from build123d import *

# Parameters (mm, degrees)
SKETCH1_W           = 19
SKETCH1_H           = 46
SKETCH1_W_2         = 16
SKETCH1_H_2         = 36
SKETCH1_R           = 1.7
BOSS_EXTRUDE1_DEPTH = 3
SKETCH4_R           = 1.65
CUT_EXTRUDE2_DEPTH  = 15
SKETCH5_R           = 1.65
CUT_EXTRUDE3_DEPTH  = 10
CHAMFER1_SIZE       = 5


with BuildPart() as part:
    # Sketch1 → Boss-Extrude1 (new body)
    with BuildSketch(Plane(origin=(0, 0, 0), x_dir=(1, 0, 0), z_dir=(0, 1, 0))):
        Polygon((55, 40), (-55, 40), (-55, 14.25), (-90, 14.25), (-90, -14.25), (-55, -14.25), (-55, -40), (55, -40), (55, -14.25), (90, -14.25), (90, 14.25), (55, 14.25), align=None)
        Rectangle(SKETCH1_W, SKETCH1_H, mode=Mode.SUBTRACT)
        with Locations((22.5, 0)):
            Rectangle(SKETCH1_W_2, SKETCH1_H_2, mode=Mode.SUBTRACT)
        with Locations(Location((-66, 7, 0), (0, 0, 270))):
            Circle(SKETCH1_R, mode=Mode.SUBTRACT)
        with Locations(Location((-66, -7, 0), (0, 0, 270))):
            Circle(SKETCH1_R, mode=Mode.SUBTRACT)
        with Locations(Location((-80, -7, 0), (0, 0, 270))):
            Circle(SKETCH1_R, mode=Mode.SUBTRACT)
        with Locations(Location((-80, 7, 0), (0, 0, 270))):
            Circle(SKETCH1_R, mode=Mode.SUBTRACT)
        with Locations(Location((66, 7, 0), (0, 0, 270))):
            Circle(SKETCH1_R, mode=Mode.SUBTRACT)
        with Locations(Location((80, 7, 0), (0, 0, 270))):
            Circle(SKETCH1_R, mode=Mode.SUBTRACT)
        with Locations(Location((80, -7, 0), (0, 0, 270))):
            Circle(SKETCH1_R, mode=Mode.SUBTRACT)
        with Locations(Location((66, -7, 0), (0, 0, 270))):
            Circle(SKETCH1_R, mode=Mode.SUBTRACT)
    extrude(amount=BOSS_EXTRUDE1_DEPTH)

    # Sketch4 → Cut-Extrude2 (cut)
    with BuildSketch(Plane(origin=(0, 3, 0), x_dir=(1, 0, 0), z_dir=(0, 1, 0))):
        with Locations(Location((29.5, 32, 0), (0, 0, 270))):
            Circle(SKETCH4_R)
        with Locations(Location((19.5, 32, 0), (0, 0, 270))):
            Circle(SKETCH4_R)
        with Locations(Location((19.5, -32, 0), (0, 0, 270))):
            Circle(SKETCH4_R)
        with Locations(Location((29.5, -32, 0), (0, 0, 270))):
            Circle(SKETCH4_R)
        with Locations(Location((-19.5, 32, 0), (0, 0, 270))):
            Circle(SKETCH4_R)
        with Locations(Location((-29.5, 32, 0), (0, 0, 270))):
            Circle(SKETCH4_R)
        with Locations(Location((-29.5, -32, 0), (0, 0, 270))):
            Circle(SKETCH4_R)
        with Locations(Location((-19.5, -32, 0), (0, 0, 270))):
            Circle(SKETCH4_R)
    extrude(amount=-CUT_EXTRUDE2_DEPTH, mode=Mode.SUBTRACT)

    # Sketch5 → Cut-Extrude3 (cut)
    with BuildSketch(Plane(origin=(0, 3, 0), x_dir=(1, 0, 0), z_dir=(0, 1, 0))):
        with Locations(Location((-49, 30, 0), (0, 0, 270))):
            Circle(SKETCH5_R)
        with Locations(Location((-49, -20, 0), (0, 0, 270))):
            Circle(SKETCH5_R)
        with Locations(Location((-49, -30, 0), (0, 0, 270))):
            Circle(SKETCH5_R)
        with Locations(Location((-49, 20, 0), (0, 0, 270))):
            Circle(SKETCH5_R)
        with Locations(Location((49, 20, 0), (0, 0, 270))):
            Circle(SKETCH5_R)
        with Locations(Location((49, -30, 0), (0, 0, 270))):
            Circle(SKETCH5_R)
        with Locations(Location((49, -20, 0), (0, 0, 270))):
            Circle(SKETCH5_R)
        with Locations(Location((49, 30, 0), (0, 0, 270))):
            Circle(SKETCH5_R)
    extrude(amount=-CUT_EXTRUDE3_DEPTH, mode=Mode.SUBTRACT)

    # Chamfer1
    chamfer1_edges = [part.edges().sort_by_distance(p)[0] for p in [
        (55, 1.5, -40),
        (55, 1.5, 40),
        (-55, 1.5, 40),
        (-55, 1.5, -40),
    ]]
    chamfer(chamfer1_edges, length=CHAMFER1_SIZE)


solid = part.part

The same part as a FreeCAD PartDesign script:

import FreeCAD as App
import Part
import Sketcher
from FreeCAD import Vector


def edges_at(feature, points):
    """Names of the edges that pass closest to the given points."""
    edges = feature.Shape.Edges
    near = lambda p: min(range(len(edges)), key=lambda i: edges[i].distToShape(Part.Vertex(*p))[0])
    return sorted({f"Edge{near(p) + 1}" for p in points})


def add_polygon(sketch, points):
    """Adds a closed chain of lines whose ends are joined by coincident constraints."""
    first, n = sketch.GeometryCount, len(points)
    for a, b in zip(points, points[1:] + points[:1]):
        sketch.addGeometry(Part.LineSegment(App.Vector(*a, 0), App.Vector(*b, 0)), False)
    for i in range(n):
        sketch.addConstraint(Sketcher.Constraint("Coincident", first + i, 2, first + (i + 1) % n, 1))

doc = App.newDocument("Part")
body = doc.addObject("PartDesign::Body", "Body")

# Sketch on XZ plane
sketch1 = doc.addObject("Sketcher::SketchObject", "Sketch")
body.addObject(sketch1)
sketch1.AttachmentSupport = (doc.XZ_Plane, [""])
sketch1.MapMode = "FlatFace"
add_polygon(sketch1, [(55, -40), (-55, -40), (-55, -14.2), (-90, -14.2), (-90, 14.2), (-55, 14.2), (-55, 40), (55, 40), (55, 14.2), (90, 14.2), (90, -14.2), (55, -14.2)])  # lines 0-11
sketch1.addGeometry(Part.Circle(Vector(-80, 7, 0), Vector(0, 0, 1), 1.7), False)  # 12
sketch1.addGeometry(Part.Circle(Vector(-66, 7, 0), Vector(0, 0, 1), 1.7), False)  # 13
sketch1.addGeometry(Part.Circle(Vector(66, 7, 0), Vector(0, 0, 1), 1.7), False)  # 14
sketch1.addGeometry(Part.Circle(Vector(80, 7, 0), Vector(0, 0, 1), 1.7), False)  # 15
sketch1.addGeometry(Part.Circle(Vector(-80, -7, 0), Vector(0, 0, 1), 1.7), False)  # 16
sketch1.addGeometry(Part.Circle(Vector(-66, -7, 0), Vector(0, 0, 1), 1.7), False)  # 17
add_polygon(sketch1, [(9.5, 23), (-9.5, 23), (-9.5, -23), (9.5, -23)])  # lines 18-21
add_polygon(sketch1, [(30.5, 18), (14.5, 18), (14.5, -18), (30.5, -18)])  # lines 22-25
sketch1.addGeometry(Part.Circle(Vector(66, -7, 0), Vector(0, 0, 1), 1.7), False)  # 26
sketch1.addGeometry(Part.Circle(Vector(80, -7, 0), Vector(0, 0, 1), 1.7), False)  # 27
sketch1.addConstraint(Sketcher.Constraint("Horizontal", 0))
sketch1.addConstraint(Sketcher.Constraint("Vertical", 1))
sketch1.addConstraint(Sketcher.Constraint("Horizontal", 2))
sketch1.addConstraint(Sketcher.Constraint("Vertical", 3))
sketch1.addConstraint(Sketcher.Constraint("Horizontal", 4))
sketch1.addConstraint(Sketcher.Constraint("Vertical", 5))
sketch1.addConstraint(Sketcher.Constraint("Horizontal", 6))
sketch1.addConstraint(Sketcher.Constraint("Vertical", 7))
sketch1.addConstraint(Sketcher.Constraint("Horizontal", 8))
sketch1.addConstraint(Sketcher.Constraint("Vertical", 9))
sketch1.addConstraint(Sketcher.Constraint("Horizontal", 10))
sketch1.addConstraint(Sketcher.Constraint("Vertical", 11))
sketch1.addConstraint(Sketcher.Constraint("Horizontal", 18))
sketch1.addConstraint(Sketcher.Constraint("Vertical", 19))
sketch1.addConstraint(Sketcher.Constraint("Horizontal", 20))
sketch1.addConstraint(Sketcher.Constraint("Vertical", 21))
sketch1.addConstraint(Sketcher.Constraint("Horizontal", 22))
sketch1.addConstraint(Sketcher.Constraint("Vertical", 23))
sketch1.addConstraint(Sketcher.Constraint("Horizontal", 24))
sketch1.addConstraint(Sketcher.Constraint("Vertical", 25))
sketch1.addConstraint(Sketcher.Constraint("Equal", 12, 13))
sketch1.addConstraint(Sketcher.Constraint("Equal", 13, 14))
sketch1.addConstraint(Sketcher.Constraint("Equal", 14, 15))
sketch1.addConstraint(Sketcher.Constraint("Equal", 15, 16))
sketch1.addConstraint(Sketcher.Constraint("Equal", 16, 17))
sketch1.addConstraint(Sketcher.Constraint("Equal", 17, 26))
sketch1.addConstraint(Sketcher.Constraint("Equal", 26, 27))
sketch1.addConstraint(Sketcher.Constraint("Symmetric", 15, 3, 16, 3, -1, 1))
sketch1.addConstraint(Sketcher.Constraint("Symmetric", 14, 3, 17, 3, -1, 1))
sketch1.addConstraint(Sketcher.Constraint("Symmetric", 13, 3, 26, 3, -1, 1))
sketch1.addConstraint(Sketcher.Constraint("Symmetric", 12, 3, 27, 3, -1, 1))
sketch1.addConstraint(Sketcher.Constraint("Symmetric", 0, 2, 6, 2, -1, 1))
sketch1.addConstraint(Sketcher.Constraint("Symmetric", 2, 2, 8, 2, -1, 1))
sketch1.addConstraint(Sketcher.Constraint("Symmetric", 4, 2, 10, 2, -1, 1))
sketch1.addConstraint(Sketcher.Constraint("Symmetric", 18, 2, 20, 2, -1, 1))
sketch1.addConstraint(Sketcher.Constraint("Symmetric", 13, 3, 14, 3, -2))
sketch1.addConstraint(Sketcher.Constraint("Symmetric", 12, 3, 15, 3, -2))
sketch1.addConstraint(Sketcher.Constraint("Symmetric", 4, 2, 7, 2, -2))
sketch1.addConstraint(Sketcher.Constraint("Horizontal", 12, 3, 13, 3))
sketch1.addConstraint(Sketcher.Constraint("Diameter", 12, 3.4))
sketch1.addConstraint(Sketcher.Constraint("DistanceX", 0, 2, 0, 1, 110.0))
sketch1.addConstraint(Sketcher.Constraint("DistanceX", 2, 2, 2, 1, 35.0))
sketch1.addConstraint(Sketcher.Constraint("DistanceX", 18, 2, 18, 1, 19.0))
sketch1.addConstraint(Sketcher.Constraint("DistanceX", 22, 2, 22, 1, 16.0))
sketch1.addConstraint(Sketcher.Constraint("DistanceY", 19, 2, 19, 1, 46.0))
sketch1.addConstraint(Sketcher.Constraint("DistanceY", 23, 2, 23, 1, 36.0))
sketch1.addConstraint(Sketcher.Constraint("DistanceY", 3, 1, 3, 2, 28.5))
sketch1.addConstraint(Sketcher.Constraint("DistanceX", 12, 3, -1, 1, 80.0))
sketch1.addConstraint(Sketcher.Constraint("DistanceY", -1, 1, 12, 3, 7.0))
sketch1.addConstraint(Sketcher.Constraint("DistanceX", 13, 3, -1, 1, 66.0))
sketch1.addConstraint(Sketcher.Constraint("DistanceY", 0, 2, -1, 1, 40.0))
sketch1.addConstraint(Sketcher.Constraint("DistanceY", -1, 1, 22, 2, 18.0))
sketch1.addConstraint(Sketcher.Constraint("DistanceX", 21, 2, 22, 2, 5.0))
pad1 = doc.addObject("PartDesign::Pad", "Pad")
body.addObject(pad1)
pad1.Profile = sketch1
pad1.Length = 3
pad1.Reversed = True

# Sketch on XZ plane
sketch2 = doc.addObject("Sketcher::SketchObject", "Sketch001")
body.addObject(sketch2)
sketch2.AttachmentSupport = (doc.XZ_Plane, [""])
sketch2.MapMode = "FlatFace"
sketch2.AttachmentOffset = App.Placement(Vector(0, 0, -3), App.Rotation())
sketch2.addGeometry(Part.Circle(Vector(29.5, -32, 0), Vector(0, 0, 1), 1.6), False)
sketch2.addGeometry(Part.Circle(Vector(19.5, -32, 0), Vector(0, 0, 1), 1.6), False)
sketch2.addGeometry(Part.Circle(Vector(19.5, 32, 0), Vector(0, 0, 1), 1.6), False)
sketch2.addGeometry(Part.Circle(Vector(29.5, 32, 0), Vector(0, 0, 1), 1.6), False)
sketch2.addGeometry(Part.Circle(Vector(-19.5, -32, 0), Vector(0, 0, 1), 1.6), False)
sketch2.addGeometry(Part.Circle(Vector(-29.5, -32, 0), Vector(0, 0, 1), 1.6), False)
sketch2.addGeometry(Part.Circle(Vector(-29.5, 32, 0), Vector(0, 0, 1), 1.6), False)
sketch2.addGeometry(Part.Circle(Vector(-19.5, 32, 0), Vector(0, 0, 1), 1.6), False)
sketch2.addConstraint(Sketcher.Constraint("Equal", 0, 1))
sketch2.addConstraint(Sketcher.Constraint("Equal", 1, 2))
sketch2.addConstraint(Sketcher.Constraint("Equal", 2, 3))
sketch2.addConstraint(Sketcher.Constraint("Equal", 3, 4))
sketch2.addConstraint(Sketcher.Constraint("Equal", 4, 5))
sketch2.addConstraint(Sketcher.Constraint("Equal", 5, 6))
sketch2.addConstraint(Sketcher.Constraint("Equal", 6, 7))
sketch2.addConstraint(Sketcher.Constraint("Symmetric", 2, 3, 4, 3, -1, 1))
sketch2.addConstraint(Sketcher.Constraint("Symmetric", 3, 3, 5, 3, -1, 1))
sketch2.addConstraint(Sketcher.Constraint("Symmetric", 0, 3, 6, 3, -1, 1))
sketch2.addConstraint(Sketcher.Constraint("Symmetric", 1, 3, 7, 3, -1, 1))
sketch2.addConstraint(Sketcher.Constraint("Symmetric", 1, 3, 4, 3, -2))
sketch2.addConstraint(Sketcher.Constraint("Symmetric", 0, 3, 5, 3, -2))
sketch2.addConstraint(Sketcher.Constraint("Horizontal", 0, 3, 1, 3))
sketch2.addConstraint(Sketcher.Constraint("Diameter", 0, 3.3))
sketch2.addConstraint(Sketcher.Constraint("DistanceY", 0, 3, -1, 1, 32.0))
sketch2.addConstraint(Sketcher.Constraint("DistanceX", 1, 3, 0, 3, 10.0))
sketch2.addConstraint(Sketcher.Constraint("DistanceX", 4, 3, 1, 3, 39.0))
pocket1 = doc.addObject("PartDesign::Pocket", "Pocket")
body.addObject(pocket1)
pocket1.Profile = sketch2
pocket1.Length = 15
pocket1.Reversed = True

# Sketch on XZ plane
sketch3 = doc.addObject("Sketcher::SketchObject", "Sketch002")
body.addObject(sketch3)
sketch3.AttachmentSupport = (doc.XZ_Plane, [""])
sketch3.MapMode = "FlatFace"
sketch3.AttachmentOffset = App.Placement(Vector(0, 0, -3), App.Rotation())
sketch3.addGeometry(Part.Circle(Vector(-49, -30, 0), Vector(0, 0, 1), 1.6), False)
sketch3.addGeometry(Part.Circle(Vector(-49, 20, 0), Vector(0, 0, 1), 1.6), False)
sketch3.addGeometry(Part.Circle(Vector(-49, 30, 0), Vector(0, 0, 1), 1.6), False)
sketch3.addGeometry(Part.Circle(Vector(-49, -20, 0), Vector(0, 0, 1), 1.6), False)
sketch3.addGeometry(Part.Circle(Vector(49, -20, 0), Vector(0, 0, 1), 1.6), False)
sketch3.addGeometry(Part.Circle(Vector(49, 30, 0), Vector(0, 0, 1), 1.6), False)
sketch3.addGeometry(Part.Circle(Vector(49, 20, 0), Vector(0, 0, 1), 1.6), False)
sketch3.addGeometry(Part.Circle(Vector(49, -30, 0), Vector(0, 0, 1), 1.6), False)
sketch3.addConstraint(Sketcher.Constraint("Equal", 0, 1))
sketch3.addConstraint(Sketcher.Constraint("Equal", 1, 2))
sketch3.addConstraint(Sketcher.Constraint("Equal", 2, 3))
sketch3.addConstraint(Sketcher.Constraint("Equal", 3, 4))
sketch3.addConstraint(Sketcher.Constraint("Equal", 4, 5))
sketch3.addConstraint(Sketcher.Constraint("Equal", 5, 6))
sketch3.addConstraint(Sketcher.Constraint("Equal", 6, 7))
sketch3.addConstraint(Sketcher.Constraint("Symmetric", 1, 3, 4, 3, -1, 1))
sketch3.addConstraint(Sketcher.Constraint("Symmetric", 0, 3, 5, 3, -1, 1))
sketch3.addConstraint(Sketcher.Constraint("Symmetric", 3, 3, 6, 3, -1, 1))
sketch3.addConstraint(Sketcher.Constraint("Symmetric", 2, 3, 7, 3, -1, 1))
sketch3.addConstraint(Sketcher.Constraint("Symmetric", 3, 3, 4, 3, -2))
sketch3.addConstraint(Sketcher.Constraint("Symmetric", 2, 3, 5, 3, -2))
sketch3.addConstraint(Sketcher.Constraint("Vertical", 0, 3, 1, 3))
sketch3.addConstraint(Sketcher.Constraint("Diameter", 0, 3.3))
sketch3.addConstraint(Sketcher.Constraint("DistanceX", 0, 3, -1, 1, 49.0))
sketch3.addConstraint(Sketcher.Constraint("DistanceY", 0, 3, -1, 1, 30.0))
sketch3.addConstraint(Sketcher.Constraint("DistanceY", -1, 1, 1, 3, 20.0))
pocket2 = doc.addObject("PartDesign::Pocket", "Pocket001")
body.addObject(pocket2)
pocket2.Profile = sketch3
pocket2.Length = 10
pocket2.Reversed = True
doc.recompute()

chamfer = doc.addObject("PartDesign::Chamfer", "Chamfer")
body.addObject(chamfer)
chamfer.Base = (pocket2, edges_at(pocket2, [
    (55, 1.5, -40),
    (55, 1.5, 40),
    (-55, 1.5, 40),
    (-55, 1.5, -40),
]))
chamfer.Size = 5

doc.recompute()
